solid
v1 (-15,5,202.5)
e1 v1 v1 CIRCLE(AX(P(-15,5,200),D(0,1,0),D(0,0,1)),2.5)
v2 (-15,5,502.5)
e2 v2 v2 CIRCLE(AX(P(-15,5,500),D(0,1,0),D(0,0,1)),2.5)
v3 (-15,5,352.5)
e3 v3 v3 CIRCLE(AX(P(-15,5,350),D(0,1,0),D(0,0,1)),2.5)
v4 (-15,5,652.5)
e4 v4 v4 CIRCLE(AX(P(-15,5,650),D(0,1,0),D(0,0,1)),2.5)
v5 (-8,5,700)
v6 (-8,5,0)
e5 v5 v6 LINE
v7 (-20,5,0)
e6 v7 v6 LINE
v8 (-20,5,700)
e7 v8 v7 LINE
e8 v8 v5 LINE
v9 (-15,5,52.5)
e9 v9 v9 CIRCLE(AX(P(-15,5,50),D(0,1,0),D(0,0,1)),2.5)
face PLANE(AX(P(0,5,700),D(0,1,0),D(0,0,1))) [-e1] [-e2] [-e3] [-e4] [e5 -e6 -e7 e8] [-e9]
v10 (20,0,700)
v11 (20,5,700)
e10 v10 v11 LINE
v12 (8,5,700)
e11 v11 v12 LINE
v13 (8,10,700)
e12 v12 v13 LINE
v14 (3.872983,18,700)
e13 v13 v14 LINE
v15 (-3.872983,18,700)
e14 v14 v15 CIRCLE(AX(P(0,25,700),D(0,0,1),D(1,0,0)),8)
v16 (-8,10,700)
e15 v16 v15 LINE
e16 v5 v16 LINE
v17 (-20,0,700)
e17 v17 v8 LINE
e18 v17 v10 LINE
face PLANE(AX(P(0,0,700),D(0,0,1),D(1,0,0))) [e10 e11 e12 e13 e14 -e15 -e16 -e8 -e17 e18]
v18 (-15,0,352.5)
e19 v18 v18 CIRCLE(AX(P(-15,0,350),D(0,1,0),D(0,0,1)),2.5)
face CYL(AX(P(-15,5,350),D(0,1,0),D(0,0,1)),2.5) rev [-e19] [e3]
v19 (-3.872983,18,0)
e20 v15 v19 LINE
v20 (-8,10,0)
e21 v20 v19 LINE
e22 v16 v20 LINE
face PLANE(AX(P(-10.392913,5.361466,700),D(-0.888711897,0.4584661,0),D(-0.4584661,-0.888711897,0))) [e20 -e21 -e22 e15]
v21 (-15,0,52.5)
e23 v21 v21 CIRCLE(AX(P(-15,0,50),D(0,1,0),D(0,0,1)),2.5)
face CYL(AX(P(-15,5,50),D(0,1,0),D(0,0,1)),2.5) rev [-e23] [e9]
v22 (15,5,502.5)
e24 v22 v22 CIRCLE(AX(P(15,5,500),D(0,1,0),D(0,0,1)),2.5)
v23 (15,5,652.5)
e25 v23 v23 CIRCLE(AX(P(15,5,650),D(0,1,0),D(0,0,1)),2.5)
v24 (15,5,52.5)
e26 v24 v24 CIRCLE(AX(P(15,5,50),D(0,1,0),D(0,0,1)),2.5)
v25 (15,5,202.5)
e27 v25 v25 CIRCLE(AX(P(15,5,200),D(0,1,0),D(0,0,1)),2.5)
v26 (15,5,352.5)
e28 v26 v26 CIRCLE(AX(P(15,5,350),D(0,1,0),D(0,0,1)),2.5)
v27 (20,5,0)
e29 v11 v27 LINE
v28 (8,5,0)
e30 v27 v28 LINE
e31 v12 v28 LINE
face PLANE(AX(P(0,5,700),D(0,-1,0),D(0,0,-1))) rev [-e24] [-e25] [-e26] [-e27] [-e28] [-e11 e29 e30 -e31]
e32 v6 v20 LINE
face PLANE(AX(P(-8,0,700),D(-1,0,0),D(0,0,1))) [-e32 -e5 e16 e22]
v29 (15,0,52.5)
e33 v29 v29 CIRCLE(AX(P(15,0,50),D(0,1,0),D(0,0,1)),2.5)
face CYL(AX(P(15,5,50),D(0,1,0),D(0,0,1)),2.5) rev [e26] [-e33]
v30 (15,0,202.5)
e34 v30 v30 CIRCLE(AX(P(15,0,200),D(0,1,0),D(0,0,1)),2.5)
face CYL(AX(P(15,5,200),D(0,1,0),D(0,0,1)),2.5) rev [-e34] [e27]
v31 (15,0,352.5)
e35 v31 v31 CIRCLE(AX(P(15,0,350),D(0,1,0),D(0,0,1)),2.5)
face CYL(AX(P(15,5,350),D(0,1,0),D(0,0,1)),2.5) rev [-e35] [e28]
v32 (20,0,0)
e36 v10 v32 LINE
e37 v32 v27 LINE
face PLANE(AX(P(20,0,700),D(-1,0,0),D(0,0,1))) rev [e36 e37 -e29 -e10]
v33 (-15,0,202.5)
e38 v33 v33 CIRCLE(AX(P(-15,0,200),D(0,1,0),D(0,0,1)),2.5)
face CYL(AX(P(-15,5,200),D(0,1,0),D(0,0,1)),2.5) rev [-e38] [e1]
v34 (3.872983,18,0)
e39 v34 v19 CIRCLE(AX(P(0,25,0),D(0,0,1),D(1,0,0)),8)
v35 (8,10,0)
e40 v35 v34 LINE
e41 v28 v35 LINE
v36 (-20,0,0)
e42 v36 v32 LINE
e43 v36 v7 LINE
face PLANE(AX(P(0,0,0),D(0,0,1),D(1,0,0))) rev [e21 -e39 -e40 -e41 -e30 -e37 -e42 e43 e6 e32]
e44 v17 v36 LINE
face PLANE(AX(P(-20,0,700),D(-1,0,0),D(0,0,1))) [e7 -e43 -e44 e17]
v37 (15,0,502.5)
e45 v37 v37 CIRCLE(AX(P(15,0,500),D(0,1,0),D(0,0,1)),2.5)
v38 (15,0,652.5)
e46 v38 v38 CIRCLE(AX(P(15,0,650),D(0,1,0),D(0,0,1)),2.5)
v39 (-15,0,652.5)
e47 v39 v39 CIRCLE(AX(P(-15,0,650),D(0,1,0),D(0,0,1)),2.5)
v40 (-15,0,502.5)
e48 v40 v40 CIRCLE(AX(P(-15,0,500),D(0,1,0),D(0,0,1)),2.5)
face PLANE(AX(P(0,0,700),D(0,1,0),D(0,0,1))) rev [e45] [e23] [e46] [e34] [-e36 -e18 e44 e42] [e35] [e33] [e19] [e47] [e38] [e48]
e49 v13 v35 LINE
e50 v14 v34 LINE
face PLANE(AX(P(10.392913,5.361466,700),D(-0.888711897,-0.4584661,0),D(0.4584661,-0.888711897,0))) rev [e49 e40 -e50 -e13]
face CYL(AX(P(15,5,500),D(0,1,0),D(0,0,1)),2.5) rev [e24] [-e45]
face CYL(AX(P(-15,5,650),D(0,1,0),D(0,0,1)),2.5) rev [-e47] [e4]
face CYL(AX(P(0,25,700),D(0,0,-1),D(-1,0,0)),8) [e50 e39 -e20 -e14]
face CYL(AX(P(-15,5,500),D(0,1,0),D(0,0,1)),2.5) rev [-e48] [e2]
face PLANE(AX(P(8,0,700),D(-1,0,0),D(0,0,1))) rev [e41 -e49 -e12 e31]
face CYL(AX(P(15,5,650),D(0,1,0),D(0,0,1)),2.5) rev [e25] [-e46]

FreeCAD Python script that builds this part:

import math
import FreeCAD as App
import Part
import Sketcher
from FreeCAD import Vector

doc = App.newDocument("Part")
body = doc.addObject("PartDesign::Body", "Body")

sketch1 = body.newObject("Sketcher::SketchObject", "Sketch")
sketch1.AttachmentSupport = (doc.getObject("XY_Plane"), [""])
sketch1.MapMode = "FlatFace"
sketch1.addGeometry([
    Part.LineSegment(Vector(-20, 5, 0), Vector(-20, 0, 0)),
    Part.LineSegment(Vector(-20, 0, 0), Vector(20, 0, 0)),
    Part.LineSegment(Vector(20, 0, 0), Vector(20, 5, 0)),
    Part.LineSegment(Vector(20, 5, 0), Vector(8, 5, 0)),
    Part.LineSegment(Vector(8, 5, 0), Vector(8, 10, 0)),
    Part.LineSegment(Vector(8, 10, 0), Vector(4, 18, 0)),
    Part.ArcOfCircle(Part.Circle(Vector(0, 25, 0), Vector(0, 0, 1), 8), math.radians(-119), math.radians(-61)),
    Part.LineSegment(Vector(-4, 18, 0), Vector(-8, 10, 0)),
    Part.LineSegment(Vector(-8, 10, 0), Vector(-8, 5, 0)),
    Part.LineSegment(Vector(-8, 5, 0), Vector(-20, 5, 0)),
], False)
sketch1.addConstraint([
    Sketcher.Constraint("Coincident", 0, 2, 1, 1),
    Sketcher.Constraint("Coincident", 1, 2, 2, 1),
    Sketcher.Constraint("Coincident", 2, 2, 3, 1),
    Sketcher.Constraint("Coincident", 3, 2, 4, 1),
    Sketcher.Constraint("Coincident", 4, 2, 5, 1),
    Sketcher.Constraint("Coincident", 5, 2, 6, 2),
    Sketcher.Constraint("Coincident", 6, 1, 7, 1),
    Sketcher.Constraint("Coincident", 7, 2, 8, 1),
    Sketcher.Constraint("Coincident", 8, 2, 9, 1),
    Sketcher.Constraint("Coincident", 9, 2, 0, 1),
    Sketcher.Constraint("Vertical", 0),
    Sketcher.Constraint("Horizontal", 1),
    Sketcher.Constraint("Vertical", 2),
    Sketcher.Constraint("Horizontal", 3),
    Sketcher.Constraint("Vertical", 4),
    Sketcher.Constraint("Vertical", 8),
    Sketcher.Constraint("Horizontal", 9),
    Sketcher.Constraint("Symmetric", 0, 2, 1, 2, -1, 1),
    Sketcher.Constraint("Symmetric", 5, 2, 6, 1, -2),
    Sketcher.Constraint("Symmetric", 4, 2, 7, 2, -2),
    Sketcher.Constraint("Horizontal", 3, 2, 8, 2),
    Sketcher.Constraint("Equal", 2, 4),
    Sketcher.Constraint("Radius", 6, 8.0),
    Sketcher.Constraint("DistanceX", 1, 1, 1, 2, 40.0),
    Sketcher.Constraint("DistanceX", 3, 2, 3, 1, 12.0),
    Sketcher.Constraint("DistanceY", 0, 2, 0, 1, 5.0),
    Sketcher.Constraint("DistanceY", -1, 1, 6, 3, 25.0),
    Sketcher.Constraint("DistanceY", -1, 1, 5, 2, 18.0),
])
pad1 = body.newObject("PartDesign::Pad", "Pad")
pad1.Profile = sketch1
pad1.Length = 700

sketch2 = body.newObject("Sketcher::SketchObject", "Sketch001")
sketch2.AttachmentSupport = (doc.getObject("XY_Plane"), [""])
sketch2.MapMode = "FlatFace"
sketch2.addGeometry(Part.Circle(Vector(0, 25, 0), Vector(0, 0, 1), 8), False)
sketch2.addConstraint([
    Sketcher.Constraint("PointOnObject", 0, 3, -2),
    Sketcher.Constraint("Diameter", 0, 16.0),
    Sketcher.Constraint("DistanceY", -1, 1, 0, 3, 25.0),
])
pad2 = body.newObject("PartDesign::Pad", "Pad001")
pad2.Profile = sketch2
pad2.Length = 700

sketch3 = body.newObject("Sketcher::SketchObject", "Sketch002")
sketch3.AttachmentSupport = (doc.getObject("XZ_Plane"), [""])
sketch3.MapMode = "FlatFace"
sketch3.AttachmentOffset = App.Placement(Vector(0, 0, -5), App.Rotation())
sketch3.addGeometry([
    Part.Circle(Vector(15, 650, 0), Vector(0, 0, 1), 2.5),
    Part.Circle(Vector(-15, 650, 0), Vector(0, 0, 1), 2.5),
], False)
sketch3.addConstraint([
    Sketcher.Constraint("Equal", 0, 1),
    Sketcher.Constraint("Symmetric", 0, 3, 1, 3, -2),
    Sketcher.Constraint("Diameter", 0, 5.0),
    Sketcher.Constraint("DistanceX", -1, 1, 0, 3, 15.0),
    Sketcher.Constraint("DistanceY", -1, 1, 0, 3, 650.0),
])
doc.recompute()
hole = body.newObject("PartDesign::Hole", "Hole")
hole.Profile = sketch3
hole.ThreadType = "None"
hole.Diameter = 5
hole.DepthType = "ThroughAll"
hole.Reversed = True
doc.recompute()

linearpattern = body.newObject("PartDesign::LinearPattern", "LinearPattern")
linearpattern.Originals = [hole]
linearpattern.Direction = (doc.getObject("Z_Axis"), [""])
linearpattern.Mode = "offset"
linearpattern.Offset = 150
linearpattern.Occurrences = 5
linearpattern.Reversed = True
body.Tip = linearpattern

doc.recompute()
